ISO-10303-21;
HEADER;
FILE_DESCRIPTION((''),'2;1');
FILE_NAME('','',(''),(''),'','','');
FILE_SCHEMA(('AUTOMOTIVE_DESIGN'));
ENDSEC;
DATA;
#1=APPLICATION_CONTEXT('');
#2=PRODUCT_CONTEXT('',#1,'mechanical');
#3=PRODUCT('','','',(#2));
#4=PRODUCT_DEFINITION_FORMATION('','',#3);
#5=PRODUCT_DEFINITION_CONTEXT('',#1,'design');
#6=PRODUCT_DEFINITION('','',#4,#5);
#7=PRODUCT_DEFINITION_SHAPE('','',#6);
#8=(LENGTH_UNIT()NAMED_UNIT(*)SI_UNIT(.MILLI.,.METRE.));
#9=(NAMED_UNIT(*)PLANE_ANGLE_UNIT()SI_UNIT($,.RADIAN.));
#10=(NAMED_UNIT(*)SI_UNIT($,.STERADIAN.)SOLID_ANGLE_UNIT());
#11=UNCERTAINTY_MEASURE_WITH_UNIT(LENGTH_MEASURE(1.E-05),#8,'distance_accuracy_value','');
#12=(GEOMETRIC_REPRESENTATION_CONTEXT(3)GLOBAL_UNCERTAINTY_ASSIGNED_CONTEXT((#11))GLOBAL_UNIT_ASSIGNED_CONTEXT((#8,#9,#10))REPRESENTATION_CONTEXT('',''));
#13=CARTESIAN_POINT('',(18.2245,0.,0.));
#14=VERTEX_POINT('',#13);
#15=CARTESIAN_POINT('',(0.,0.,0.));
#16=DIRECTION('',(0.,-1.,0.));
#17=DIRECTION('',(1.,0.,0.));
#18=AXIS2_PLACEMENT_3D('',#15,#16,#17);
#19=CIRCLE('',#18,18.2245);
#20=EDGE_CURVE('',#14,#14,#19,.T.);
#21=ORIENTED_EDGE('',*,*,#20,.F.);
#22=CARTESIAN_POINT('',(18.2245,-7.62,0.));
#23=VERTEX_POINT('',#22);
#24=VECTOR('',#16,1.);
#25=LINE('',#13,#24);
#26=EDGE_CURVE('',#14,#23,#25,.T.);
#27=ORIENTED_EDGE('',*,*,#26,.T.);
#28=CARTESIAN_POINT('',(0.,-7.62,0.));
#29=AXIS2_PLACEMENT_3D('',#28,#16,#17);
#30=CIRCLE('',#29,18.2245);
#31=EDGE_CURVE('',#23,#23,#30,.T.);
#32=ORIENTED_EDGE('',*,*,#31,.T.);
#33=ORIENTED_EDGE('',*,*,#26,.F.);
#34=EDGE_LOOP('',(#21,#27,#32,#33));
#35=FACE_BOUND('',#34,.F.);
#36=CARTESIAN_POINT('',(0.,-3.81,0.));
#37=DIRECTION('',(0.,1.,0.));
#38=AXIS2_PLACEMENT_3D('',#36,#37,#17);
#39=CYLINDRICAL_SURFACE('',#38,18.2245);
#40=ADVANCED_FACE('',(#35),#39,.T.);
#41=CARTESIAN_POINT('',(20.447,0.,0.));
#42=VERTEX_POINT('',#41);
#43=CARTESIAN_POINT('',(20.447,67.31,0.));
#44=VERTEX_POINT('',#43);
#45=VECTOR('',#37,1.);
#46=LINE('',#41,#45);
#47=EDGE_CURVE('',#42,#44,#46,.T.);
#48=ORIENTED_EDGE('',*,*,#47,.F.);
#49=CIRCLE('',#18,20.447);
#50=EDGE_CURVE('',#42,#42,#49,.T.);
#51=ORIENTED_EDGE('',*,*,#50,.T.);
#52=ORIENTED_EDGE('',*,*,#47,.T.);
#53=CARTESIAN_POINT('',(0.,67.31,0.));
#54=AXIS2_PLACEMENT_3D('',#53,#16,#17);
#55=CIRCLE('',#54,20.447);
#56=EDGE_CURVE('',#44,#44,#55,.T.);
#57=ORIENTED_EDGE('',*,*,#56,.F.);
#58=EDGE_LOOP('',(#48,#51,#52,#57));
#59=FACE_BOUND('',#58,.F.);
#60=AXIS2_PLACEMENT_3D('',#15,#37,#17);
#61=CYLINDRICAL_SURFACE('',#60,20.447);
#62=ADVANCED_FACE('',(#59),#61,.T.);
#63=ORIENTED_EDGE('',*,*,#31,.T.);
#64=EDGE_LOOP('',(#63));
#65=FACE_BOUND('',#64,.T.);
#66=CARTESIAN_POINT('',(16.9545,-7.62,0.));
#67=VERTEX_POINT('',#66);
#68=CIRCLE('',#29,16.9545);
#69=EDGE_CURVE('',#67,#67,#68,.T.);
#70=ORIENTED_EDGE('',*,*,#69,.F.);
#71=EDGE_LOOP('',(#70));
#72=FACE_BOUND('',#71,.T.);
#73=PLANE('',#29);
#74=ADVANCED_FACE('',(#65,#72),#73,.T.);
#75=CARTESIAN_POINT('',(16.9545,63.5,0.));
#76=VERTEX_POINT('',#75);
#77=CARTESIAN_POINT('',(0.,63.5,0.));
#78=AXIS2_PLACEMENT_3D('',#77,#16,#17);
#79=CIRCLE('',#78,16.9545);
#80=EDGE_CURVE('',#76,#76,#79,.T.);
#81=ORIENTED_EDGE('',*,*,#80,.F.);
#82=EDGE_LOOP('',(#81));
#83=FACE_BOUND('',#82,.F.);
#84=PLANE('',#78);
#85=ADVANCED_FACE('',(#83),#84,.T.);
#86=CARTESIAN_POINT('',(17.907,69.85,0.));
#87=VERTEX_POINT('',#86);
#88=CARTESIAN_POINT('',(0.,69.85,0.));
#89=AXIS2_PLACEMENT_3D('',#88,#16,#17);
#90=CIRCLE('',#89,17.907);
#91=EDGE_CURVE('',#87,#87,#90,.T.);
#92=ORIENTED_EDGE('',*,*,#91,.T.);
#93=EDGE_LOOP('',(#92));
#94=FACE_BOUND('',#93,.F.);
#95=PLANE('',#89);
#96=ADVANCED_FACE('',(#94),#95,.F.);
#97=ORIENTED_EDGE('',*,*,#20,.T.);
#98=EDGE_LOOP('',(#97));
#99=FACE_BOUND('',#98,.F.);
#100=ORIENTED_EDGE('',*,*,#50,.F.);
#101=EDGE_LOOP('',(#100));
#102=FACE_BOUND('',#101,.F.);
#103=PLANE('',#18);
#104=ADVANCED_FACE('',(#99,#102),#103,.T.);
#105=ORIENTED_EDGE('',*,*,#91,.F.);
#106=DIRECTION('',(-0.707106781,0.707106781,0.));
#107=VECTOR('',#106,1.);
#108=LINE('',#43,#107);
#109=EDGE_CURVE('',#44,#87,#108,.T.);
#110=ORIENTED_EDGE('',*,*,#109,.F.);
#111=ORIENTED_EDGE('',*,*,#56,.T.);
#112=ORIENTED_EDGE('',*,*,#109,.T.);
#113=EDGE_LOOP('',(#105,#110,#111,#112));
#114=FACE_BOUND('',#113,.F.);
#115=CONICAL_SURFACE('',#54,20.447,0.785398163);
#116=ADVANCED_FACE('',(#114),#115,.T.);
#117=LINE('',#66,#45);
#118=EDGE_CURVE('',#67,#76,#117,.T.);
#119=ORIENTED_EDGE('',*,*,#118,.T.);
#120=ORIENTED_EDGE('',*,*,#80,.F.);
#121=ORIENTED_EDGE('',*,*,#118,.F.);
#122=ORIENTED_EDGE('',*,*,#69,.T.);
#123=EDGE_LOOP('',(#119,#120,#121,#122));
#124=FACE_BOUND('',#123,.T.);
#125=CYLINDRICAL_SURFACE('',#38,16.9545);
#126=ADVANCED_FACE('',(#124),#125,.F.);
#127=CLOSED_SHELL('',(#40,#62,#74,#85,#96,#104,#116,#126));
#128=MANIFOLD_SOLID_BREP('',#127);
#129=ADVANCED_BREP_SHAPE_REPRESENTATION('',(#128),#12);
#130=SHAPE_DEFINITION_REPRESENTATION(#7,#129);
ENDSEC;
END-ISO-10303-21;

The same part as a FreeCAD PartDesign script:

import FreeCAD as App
import Part
import Sketcher
Q = App.Units.Quantity


def edges_at(feature, points):
    """Names of the edges that pass closest to the given points."""
    edges = feature.Shape.Edges
    near = lambda p: min(range(len(edges)), key=lambda i: edges[i].distToShape(Part.Vertex(*p))[0])
    return sorted({f"Edge{near(p) + 1}" for p in points})


def add_polygon(sketch, points):
    """Adds a closed chain of lines whose ends are joined by coincident constraints."""
    first, n = sketch.GeometryCount, len(points)
    for a, b in zip(points, points[1:] + points[:1]):
        sketch.addGeometry(Part.LineSegment(App.Vector(*a, 0), App.Vector(*b, 0)), False)
    for i in range(n):
        sketch.addConstraint(Sketcher.Constraint("Coincident", first + i, 2, first + (i + 1) % n, 1))

doc = App.newDocument("Part")
body = doc.addObject("PartDesign::Body", "Body")

sketch1 = body.newObject("Sketcher::SketchObject", "Sketch")
sketch1.AttachmentSupport = (doc.getObject("XY_Plane"), [""])
sketch1.MapMode = "FlatFace"
add_polygon(sketch1, [(20.4, 0), (20.4, 69.8), (0, 69.8), (0, 63.5), (17, 63.5), (17, -3.8), (18.2, -3.8), (18.2, 0)])
sketch1.addConstraint(Sketcher.Constraint("Vertical", 0))
sketch1.addConstraint(Sketcher.Constraint("Horizontal", 1))
sketch1.addConstraint(Sketcher.Constraint("Vertical", 2))
sketch1.addConstraint(Sketcher.Constraint("Horizontal", 3))
sketch1.addConstraint(Sketcher.Constraint("Vertical", 4))
sketch1.addConstraint(Sketcher.Constraint("Horizontal", 5))
sketch1.addConstraint(Sketcher.Constraint("Vertical", 6))
sketch1.addConstraint(Sketcher.Constraint("Horizontal", 7))
sketch1.addConstraint(Sketcher.Constraint("PointOnObject", 1, 2, -2))
sketch1.addConstraint(Sketcher.Constraint("PointOnObject", 6, 2, -1))
sketch1.addConstraint(Sketcher.Constraint("DistanceX", 5, 1, 5, 2, Q("0.05 in")))
sketch1.addConstraint(Sketcher.Constraint("DistanceY", 0, 1, 0, 2, Q("2.75 in")))
sketch1.addConstraint(Sketcher.Constraint("DistanceY", 2, 2, 2, 1, Q("0.25 in")))
sketch1.addConstraint(Sketcher.Constraint("DistanceY", 4, 2, 4, 1, Q("2.65 in")))
sketch1.addConstraint(Sketcher.Constraint("DistanceX", 1, 2, 1, 1, Q("0.805 in")))
sketch1.addConstraint(Sketcher.Constraint("DistanceX", 3, 1, 3, 2, Q("0.6675 in")))
revolution = body.newObject("PartDesign::Revolution", "Revolution")
revolution.Profile = sketch1
revolution.ReferenceAxis = (sketch1, ["V_Axis"])
revolution.Angle = 360
doc.recompute()

chamfer = body.newObject("PartDesign::Chamfer", "Chamfer")
chamfer.Base = (revolution, edges_at(revolution, [(-20.447, 69.85, 0)]))
chamfer.Size = Q("0.1 in")

sketch2 = body.newObject("Sketcher::SketchObject", "Sketch001")
sketch2.AttachmentSupport = (doc.getObject("XZ_Plane"), [""])
sketch2.MapMode = "FlatFace"
sketch2.AttachmentOffset = App.Placement(App.Vector(0, 0, 0.15 * 25.4), App.Rotation())
sketch2.addGeometry(Part.Circle(App.Vector(0, 0, 0), App.Vector(0, 0, 1), 18), False)
sketch2.addGeometry(Part.Circle(App.Vector(0, 0, 0), App.Vector(0, 0, 1), 17), False)
sketch2.addConstraint(Sketcher.Constraint("Coincident", 0, 3, -1, 1))
sketch2.addConstraint(Sketcher.Constraint("Coincident", 1, 3, -1, 1))
sketch2.addConstraint(Sketcher.Constraint("Diameter", 0, Q("1.435 in")))
sketch2.addConstraint(Sketcher.Constraint("Diameter", 1, Q("1.335 in")))
pad1 = body.newObject("PartDesign::Pad", "Pad")
pad1.Profile = sketch2
pad1.Length = Q("0.15 in")

doc.recompute()
